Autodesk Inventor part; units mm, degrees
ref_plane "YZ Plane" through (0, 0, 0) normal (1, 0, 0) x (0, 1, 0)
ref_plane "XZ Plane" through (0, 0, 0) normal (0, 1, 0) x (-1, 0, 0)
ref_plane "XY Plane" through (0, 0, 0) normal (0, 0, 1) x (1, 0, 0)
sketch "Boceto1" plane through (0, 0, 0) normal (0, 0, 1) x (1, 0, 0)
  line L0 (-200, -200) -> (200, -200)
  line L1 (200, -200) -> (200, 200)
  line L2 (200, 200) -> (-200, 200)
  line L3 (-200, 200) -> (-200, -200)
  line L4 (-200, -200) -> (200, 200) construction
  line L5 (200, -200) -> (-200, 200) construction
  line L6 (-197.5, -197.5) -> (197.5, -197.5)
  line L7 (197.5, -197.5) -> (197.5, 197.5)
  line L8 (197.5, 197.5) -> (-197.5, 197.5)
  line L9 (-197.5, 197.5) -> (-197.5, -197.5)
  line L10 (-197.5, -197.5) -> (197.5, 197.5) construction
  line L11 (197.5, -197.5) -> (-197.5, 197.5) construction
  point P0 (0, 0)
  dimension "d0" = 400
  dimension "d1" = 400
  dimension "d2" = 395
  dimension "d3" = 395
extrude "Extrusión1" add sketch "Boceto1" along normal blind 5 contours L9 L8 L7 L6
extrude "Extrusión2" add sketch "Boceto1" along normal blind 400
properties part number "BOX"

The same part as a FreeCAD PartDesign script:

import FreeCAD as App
import Part
import Sketcher

V = App.Vector

doc = App.newDocument("Part")
body = doc.addObject("PartDesign::Body", "Body")

sketch1 = doc.addObject("Sketcher::SketchObject", "Sketch")
body.addObject(sketch1)
sketch1.AttachmentSupport = (doc.XY_Plane, [""])
sketch1.MapMode = "FlatFace"
sketch1.addGeometry([
    Part.LineSegment(V(-197.5, 197.5, 0), V(-197.5, -197.5, 0)),
    Part.LineSegment(V(-197.5, -197.5, 0), V(197.5, -197.5, 0)),
    Part.LineSegment(V(197.5, -197.5, 0), V(197.5, 197.5, 0)),
    Part.LineSegment(V(197.5, 197.5, 0), V(-197.5, 197.5, 0)),
], False)
sketch1.addConstraint([
    Sketcher.Constraint("Coincident", 0, 2, 1, 1),
    Sketcher.Constraint("Coincident", 1, 2, 2, 1),
    Sketcher.Constraint("Coincident", 2, 2, 3, 1),
    Sketcher.Constraint("Coincident", 3, 2, 0, 1),
    Sketcher.Constraint("Vertical", 0),
    Sketcher.Constraint("Horizontal", 1),
    Sketcher.Constraint("Vertical", 2),
    Sketcher.Constraint("Horizontal", 3),
    Sketcher.Constraint("Symmetric", 0, 2, 2, 2, -1, 1),
    Sketcher.Constraint("Equal", 3, 0),
    Sketcher.Constraint("DistanceX", 1, 1, 1, 2, 395.0),
])
pad1 = doc.addObject("PartDesign::Pad", "Pad")
body.addObject(pad1)
pad1.Profile = sketch1
pad1.Length = 5

sketch2 = doc.addObject("Sketcher::SketchObject", "Sketch001")
body.addObject(sketch2)
sketch2.AttachmentSupport = (doc.XY_Plane, [""])
sketch2.MapMode = "FlatFace"
sketch2.addGeometry([
    Part.LineSegment(V(-200, 200, 0), V(-200, -200, 0)),
    Part.LineSegment(V(-200, -200, 0), V(200, -200, 0)),
    Part.LineSegment(V(200, -200, 0), V(200, 200, 0)),
    Part.LineSegment(V(200, 200, 0), V(-200, 200, 0)),
    Part.LineSegment(V(197.5, -197.5, 0), V(-197.5, -197.5, 0)),
    Part.LineSegment(V(-197.5, -197.5, 0), V(-197.5, 197.5, 0)),
    Part.LineSegment(V(-197.5, 197.5, 0), V(197.5, 197.5, 0)),
    Part.LineSegment(V(197.5, 197.5, 0), V(197.5, -197.5, 0)),
], False)
sketch2.addConstraint([
    Sketcher.Constraint("Coincident", 0, 2, 1, 1),
    Sketcher.Constraint("Coincident", 1, 2, 2, 1),
    Sketcher.Constraint("Coincident", 2, 2, 3, 1),
    Sketcher.Constraint("Coincident", 3, 2, 0, 1),
    Sketcher.Constraint("Coincident", 4, 2, 5, 1),
    Sketcher.Constraint("Coincident", 5, 2, 6, 1),
    Sketcher.Constraint("Coincident", 6, 2, 7, 1),
    Sketcher.Constraint("Coincident", 7, 2, 4, 1),
    Sketcher.Constraint("Vertical", 0),
    Sketcher.Constraint("Horizontal", 1),
    Sketcher.Constraint("Vertical", 2),
    Sketcher.Constraint("Horizontal", 3),
    Sketcher.Constraint("Horizontal", 4),
    Sketcher.Constraint("Vertical", 5),
    Sketcher.Constraint("Horizontal", 6),
    Sketcher.Constraint("Vertical", 7),
    Sketcher.Constraint("Symmetric", 0, 2, 2, 2, -1, 1),
    Sketcher.Constraint("Symmetric", 4, 2, 6, 2, -1, 1),
    Sketcher.Constraint("Equal", 3, 0),
    Sketcher.Constraint("Equal", 6, 5),
    Sketcher.Constraint("DistanceX", 1, 1, 1, 2, 400.0),
    Sketcher.Constraint("DistanceX", 4, 2, 4, 1, 395.0),
])
pad2 = doc.addObject("PartDesign::Pad", "Pad001")
body.addObject(pad2)
pad2.Profile = sketch2
pad2.Length = 400

doc.recompute()
